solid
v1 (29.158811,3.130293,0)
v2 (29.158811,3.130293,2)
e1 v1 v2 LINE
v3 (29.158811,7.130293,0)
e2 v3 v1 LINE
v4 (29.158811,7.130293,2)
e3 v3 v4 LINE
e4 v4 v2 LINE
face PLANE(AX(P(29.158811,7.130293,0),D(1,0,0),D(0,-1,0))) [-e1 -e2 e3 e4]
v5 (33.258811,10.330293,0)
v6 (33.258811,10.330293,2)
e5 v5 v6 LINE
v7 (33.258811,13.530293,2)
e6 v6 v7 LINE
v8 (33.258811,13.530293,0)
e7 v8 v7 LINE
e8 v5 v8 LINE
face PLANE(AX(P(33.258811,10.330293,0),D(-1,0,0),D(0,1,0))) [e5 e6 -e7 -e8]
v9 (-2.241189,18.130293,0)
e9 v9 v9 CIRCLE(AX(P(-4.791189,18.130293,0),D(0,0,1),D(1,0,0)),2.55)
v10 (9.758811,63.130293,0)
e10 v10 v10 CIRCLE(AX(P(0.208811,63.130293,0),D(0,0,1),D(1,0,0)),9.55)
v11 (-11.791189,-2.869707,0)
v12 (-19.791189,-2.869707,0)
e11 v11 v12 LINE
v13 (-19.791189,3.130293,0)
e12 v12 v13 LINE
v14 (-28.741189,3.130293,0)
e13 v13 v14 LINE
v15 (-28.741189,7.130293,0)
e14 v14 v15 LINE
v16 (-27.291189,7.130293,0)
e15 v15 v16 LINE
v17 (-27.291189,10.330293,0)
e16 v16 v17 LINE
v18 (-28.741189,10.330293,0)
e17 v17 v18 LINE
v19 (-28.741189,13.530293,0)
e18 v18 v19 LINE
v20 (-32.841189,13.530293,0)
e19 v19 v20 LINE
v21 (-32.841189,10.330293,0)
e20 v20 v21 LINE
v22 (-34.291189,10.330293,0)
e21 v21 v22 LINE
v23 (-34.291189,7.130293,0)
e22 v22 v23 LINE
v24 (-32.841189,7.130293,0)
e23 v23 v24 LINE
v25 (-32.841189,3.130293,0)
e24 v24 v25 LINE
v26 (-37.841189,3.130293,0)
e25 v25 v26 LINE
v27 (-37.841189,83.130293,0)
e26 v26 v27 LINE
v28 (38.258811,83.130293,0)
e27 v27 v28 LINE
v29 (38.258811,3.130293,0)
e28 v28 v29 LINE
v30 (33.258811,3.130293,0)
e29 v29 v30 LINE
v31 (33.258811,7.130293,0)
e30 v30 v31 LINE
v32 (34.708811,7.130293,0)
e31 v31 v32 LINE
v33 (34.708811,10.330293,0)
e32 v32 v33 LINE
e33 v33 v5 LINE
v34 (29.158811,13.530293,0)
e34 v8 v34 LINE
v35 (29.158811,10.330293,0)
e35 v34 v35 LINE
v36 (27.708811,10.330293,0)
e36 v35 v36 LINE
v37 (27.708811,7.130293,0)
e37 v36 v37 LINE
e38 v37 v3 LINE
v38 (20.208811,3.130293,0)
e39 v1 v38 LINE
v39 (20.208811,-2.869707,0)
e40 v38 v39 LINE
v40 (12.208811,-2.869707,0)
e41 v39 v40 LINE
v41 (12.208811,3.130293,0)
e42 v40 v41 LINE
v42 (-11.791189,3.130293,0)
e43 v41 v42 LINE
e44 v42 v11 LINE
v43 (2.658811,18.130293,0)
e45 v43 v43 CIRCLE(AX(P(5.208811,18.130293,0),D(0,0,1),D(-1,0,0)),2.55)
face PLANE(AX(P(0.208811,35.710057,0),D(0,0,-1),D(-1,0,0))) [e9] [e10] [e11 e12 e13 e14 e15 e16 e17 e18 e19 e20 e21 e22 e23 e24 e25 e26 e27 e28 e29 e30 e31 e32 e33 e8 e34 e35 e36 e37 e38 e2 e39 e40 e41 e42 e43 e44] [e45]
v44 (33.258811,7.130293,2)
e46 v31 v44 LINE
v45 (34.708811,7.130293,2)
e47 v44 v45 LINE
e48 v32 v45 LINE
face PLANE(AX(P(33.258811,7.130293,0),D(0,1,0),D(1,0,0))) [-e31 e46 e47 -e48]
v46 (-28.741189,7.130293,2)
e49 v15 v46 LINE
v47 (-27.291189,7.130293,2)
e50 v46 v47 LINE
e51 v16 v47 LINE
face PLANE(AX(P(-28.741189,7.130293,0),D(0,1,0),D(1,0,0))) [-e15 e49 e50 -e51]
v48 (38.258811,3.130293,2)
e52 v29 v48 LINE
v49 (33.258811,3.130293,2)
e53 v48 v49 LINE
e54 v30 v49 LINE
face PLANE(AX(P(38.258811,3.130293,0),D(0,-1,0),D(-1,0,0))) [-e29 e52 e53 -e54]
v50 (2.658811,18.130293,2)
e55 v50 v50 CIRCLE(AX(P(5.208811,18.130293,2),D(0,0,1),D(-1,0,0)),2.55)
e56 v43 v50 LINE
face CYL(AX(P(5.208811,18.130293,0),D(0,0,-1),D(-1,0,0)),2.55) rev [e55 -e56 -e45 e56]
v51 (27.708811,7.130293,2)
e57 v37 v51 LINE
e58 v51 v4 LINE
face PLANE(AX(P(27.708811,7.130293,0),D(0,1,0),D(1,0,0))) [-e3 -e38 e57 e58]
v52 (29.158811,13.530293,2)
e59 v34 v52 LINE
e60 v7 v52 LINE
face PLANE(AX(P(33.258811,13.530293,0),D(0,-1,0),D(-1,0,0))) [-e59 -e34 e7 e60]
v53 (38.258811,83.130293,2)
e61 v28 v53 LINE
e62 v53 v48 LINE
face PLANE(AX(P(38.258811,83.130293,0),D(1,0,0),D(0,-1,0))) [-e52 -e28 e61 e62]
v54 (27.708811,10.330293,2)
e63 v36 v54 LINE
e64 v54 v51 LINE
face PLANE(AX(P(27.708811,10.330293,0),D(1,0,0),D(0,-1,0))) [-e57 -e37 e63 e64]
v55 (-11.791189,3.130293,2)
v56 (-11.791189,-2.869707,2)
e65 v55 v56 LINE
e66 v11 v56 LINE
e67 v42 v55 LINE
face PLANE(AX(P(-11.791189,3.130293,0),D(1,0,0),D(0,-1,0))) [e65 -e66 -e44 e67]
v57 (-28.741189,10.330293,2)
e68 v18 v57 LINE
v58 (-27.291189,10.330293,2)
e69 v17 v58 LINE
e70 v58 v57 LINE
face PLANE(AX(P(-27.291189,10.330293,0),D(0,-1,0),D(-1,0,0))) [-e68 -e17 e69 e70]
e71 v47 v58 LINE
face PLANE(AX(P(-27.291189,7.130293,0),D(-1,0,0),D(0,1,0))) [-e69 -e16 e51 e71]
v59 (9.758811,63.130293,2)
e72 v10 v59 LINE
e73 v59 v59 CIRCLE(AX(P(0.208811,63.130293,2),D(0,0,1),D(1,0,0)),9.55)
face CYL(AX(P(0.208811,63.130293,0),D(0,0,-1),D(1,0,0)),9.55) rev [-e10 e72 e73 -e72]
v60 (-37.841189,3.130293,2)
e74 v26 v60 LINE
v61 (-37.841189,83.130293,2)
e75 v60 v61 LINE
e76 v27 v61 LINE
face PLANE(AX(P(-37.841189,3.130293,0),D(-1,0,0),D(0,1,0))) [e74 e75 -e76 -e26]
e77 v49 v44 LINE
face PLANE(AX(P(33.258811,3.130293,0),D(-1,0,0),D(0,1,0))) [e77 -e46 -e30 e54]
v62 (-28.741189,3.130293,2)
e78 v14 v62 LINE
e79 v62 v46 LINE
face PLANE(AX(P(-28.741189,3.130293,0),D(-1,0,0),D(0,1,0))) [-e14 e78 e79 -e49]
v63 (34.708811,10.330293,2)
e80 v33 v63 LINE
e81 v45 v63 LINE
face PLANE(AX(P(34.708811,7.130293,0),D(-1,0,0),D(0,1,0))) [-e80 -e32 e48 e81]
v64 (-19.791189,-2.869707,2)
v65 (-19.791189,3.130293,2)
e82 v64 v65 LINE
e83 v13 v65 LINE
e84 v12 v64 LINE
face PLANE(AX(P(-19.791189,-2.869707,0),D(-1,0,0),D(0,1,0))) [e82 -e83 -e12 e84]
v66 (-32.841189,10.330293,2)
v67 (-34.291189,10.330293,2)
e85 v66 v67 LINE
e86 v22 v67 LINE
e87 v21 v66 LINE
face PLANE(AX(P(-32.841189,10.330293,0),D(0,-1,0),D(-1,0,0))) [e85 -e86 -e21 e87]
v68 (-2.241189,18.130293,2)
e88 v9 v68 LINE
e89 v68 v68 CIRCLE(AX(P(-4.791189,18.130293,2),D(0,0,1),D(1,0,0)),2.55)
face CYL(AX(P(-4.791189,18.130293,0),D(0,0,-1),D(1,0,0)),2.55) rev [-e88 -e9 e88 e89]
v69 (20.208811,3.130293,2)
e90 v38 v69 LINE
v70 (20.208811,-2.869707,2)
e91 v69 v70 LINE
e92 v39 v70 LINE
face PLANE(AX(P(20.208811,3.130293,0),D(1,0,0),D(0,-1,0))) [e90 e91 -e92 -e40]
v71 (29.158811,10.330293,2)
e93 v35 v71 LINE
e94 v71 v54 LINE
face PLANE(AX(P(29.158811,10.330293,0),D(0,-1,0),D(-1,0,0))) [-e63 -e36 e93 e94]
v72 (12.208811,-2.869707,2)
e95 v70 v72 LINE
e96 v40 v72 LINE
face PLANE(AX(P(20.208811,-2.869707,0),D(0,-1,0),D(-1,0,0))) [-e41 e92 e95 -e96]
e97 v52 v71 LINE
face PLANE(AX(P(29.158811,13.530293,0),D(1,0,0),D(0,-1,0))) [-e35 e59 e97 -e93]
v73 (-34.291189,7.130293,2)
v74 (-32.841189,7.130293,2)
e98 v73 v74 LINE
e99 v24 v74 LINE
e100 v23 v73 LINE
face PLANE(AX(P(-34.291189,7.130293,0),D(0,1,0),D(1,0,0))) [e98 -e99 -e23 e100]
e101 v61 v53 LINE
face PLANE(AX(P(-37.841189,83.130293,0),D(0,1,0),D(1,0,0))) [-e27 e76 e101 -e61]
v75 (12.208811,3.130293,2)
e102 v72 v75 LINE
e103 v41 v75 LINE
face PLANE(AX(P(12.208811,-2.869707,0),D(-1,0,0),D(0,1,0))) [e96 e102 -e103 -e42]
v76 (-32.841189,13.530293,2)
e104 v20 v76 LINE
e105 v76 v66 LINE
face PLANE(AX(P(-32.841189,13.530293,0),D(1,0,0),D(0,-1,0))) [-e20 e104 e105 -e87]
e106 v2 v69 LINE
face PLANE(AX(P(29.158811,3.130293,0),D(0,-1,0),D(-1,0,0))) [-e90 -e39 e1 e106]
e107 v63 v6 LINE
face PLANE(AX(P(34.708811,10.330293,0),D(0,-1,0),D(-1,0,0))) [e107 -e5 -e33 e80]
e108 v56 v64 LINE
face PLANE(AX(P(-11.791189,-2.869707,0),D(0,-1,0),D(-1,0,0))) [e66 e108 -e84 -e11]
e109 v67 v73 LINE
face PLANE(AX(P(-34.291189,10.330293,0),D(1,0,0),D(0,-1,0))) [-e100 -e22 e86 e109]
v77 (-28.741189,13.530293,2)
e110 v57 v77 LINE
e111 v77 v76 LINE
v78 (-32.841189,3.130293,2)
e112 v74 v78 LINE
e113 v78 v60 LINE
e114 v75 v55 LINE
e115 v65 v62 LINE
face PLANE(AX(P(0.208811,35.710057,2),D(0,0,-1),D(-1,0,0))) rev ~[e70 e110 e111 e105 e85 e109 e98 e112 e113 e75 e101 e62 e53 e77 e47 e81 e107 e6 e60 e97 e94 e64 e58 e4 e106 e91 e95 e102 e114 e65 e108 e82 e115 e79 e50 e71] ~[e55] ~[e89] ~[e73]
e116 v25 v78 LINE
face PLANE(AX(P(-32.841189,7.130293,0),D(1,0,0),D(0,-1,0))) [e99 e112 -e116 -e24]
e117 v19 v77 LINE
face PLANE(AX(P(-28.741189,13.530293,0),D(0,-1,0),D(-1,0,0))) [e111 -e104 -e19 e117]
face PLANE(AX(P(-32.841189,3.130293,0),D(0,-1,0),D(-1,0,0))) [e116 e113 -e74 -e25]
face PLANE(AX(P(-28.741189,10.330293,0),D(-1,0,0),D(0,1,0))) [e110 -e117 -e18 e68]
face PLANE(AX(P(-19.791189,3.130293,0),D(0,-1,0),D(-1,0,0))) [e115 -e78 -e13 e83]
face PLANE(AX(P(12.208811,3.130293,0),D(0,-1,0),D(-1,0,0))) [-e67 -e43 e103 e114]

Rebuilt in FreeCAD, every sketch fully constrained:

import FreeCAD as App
import Part
import Sketcher
from FreeCAD import Vector

doc = App.newDocument("Part")
params = doc.addObject("Spreadsheet::Sheet", "Params")
for row, (alias, value) in enumerate([
    ("sketch1_diameter", "5.1 mm"),
    ("sketch1_diameter2", "19.1 mm"),
    ("sketch1_width", "8 mm"),
    ("sketch1_width2", "24 mm"),
    ("sketch1_width3", "5 mm"),
    ("pad1_length", "2 mm"),
], start=1):
    params.set(f"A{row}", alias)
    params.set(f"B{row}", "=" + value)
    params.setAlias(f"B{row}", alias)

body = doc.addObject("PartDesign::Body", "Body")

# Sketch on XY plane
sketch1 = body.newObject("Sketcher::SketchObject", "Sketch")
sketch1.AttachmentSupport = (doc.getObject("XY_Plane"), [""])
sketch1.MapMode = "FlatFace"
sketch1.addGeometry([
    Part.LineSegment(Vector(-28.741189, 7.130293, 0), Vector(-28.741189, 3.130293, 0)),  # 0
    Part.LineSegment(Vector(-28.741189, 3.130293, 0), Vector(-19.791189, 3.130293, 0)),  # 1
    Part.LineSegment(Vector(-19.791189, 3.130293, 0), Vector(-19.791189, -2.869707, 0)),  # 2
    Part.LineSegment(Vector(-19.791189, -2.869707, 0), Vector(-11.791189, -2.869707, 0)),  # 3
    Part.LineSegment(Vector(-11.791189, -2.869707, 0), Vector(-11.791189, 3.130293, 0)),  # 4
    Part.LineSegment(Vector(-11.791189, 3.130293, 0), Vector(12.208811, 3.130293, 0)),  # 5
    Part.LineSegment(Vector(12.208811, 3.130293, 0), Vector(12.208811, -2.869707, 0)),  # 6
    Part.LineSegment(Vector(12.208811, -2.869707, 0), Vector(20.208811, -2.869707, 0)),  # 7
    Part.LineSegment(Vector(20.208811, -2.869707, 0), Vector(20.208811, 3.130293, 0)),  # 8
    Part.LineSegment(Vector(20.208811, 3.130293, 0), Vector(29.158811, 3.130293, 0)),  # 9
    Part.LineSegment(Vector(29.158811, 3.130293, 0), Vector(29.158811, 7.130293, 0)),  # 10
    Part.LineSegment(Vector(29.158811, 7.130293, 0), Vector(27.708811, 7.130293, 0)),  # 11
    Part.LineSegment(Vector(27.708811, 7.130293, 0), Vector(27.708811, 10.330293, 0)),  # 12
    Part.LineSegment(Vector(27.708811, 10.330293, 0), Vector(29.158811, 10.330293, 0)),  # 13
    Part.LineSegment(Vector(29.158811, 10.330293, 0), Vector(29.158811, 13.530293, 0)),  # 14
    Part.LineSegment(Vector(29.158811, 13.530293, 0), Vector(33.258811, 13.530293, 0)),  # 15
    Part.LineSegment(Vector(33.258811, 13.530293, 0), Vector(33.258811, 10.330293, 0)),  # 16
    Part.LineSegment(Vector(33.258811, 10.330293, 0), Vector(34.708811, 10.330293, 0)),  # 17
    Part.LineSegment(Vector(34.708811, 10.330293, 0), Vector(34.708811, 7.130293, 0)),  # 18
    Part.LineSegment(Vector(34.708811, 7.130293, 0), Vector(33.258811, 7.130293, 0)),  # 19
    Part.LineSegment(Vector(33.258811, 7.130293, 0), Vector(33.258811, 3.130293, 0)),  # 20
    Part.LineSegment(Vector(33.258811, 3.130293, 0), Vector(38.258811, 3.130293, 0)),  # 21
    Part.LineSegment(Vector(38.258811, 3.130293, 0), Vector(38.258811, 83.130293, 0)),  # 22
    Part.LineSegment(Vector(38.258811, 83.130293, 0), Vector(-37.841189, 83.130293, 0)),  # 23
    Part.LineSegment(Vector(-37.841189, 83.130293, 0), Vector(-37.841189, 3.130293, 0)),  # 24
    Part.LineSegment(Vector(-37.841189, 3.130293, 0), Vector(-32.841189, 3.130293, 0)),  # 25
    Part.LineSegment(Vector(-32.841189, 3.130293, 0), Vector(-32.841189, 7.130293, 0)),  # 26
    Part.LineSegment(Vector(-32.841189, 7.130293, 0), Vector(-34.291189, 7.130293, 0)),  # 27
    Part.LineSegment(Vector(-34.291189, 7.130293, 0), Vector(-34.291189, 10.330293, 0)),  # 28
    Part.LineSegment(Vector(-34.291189, 10.330293, 0), Vector(-32.841189, 10.330293, 0)),  # 29
    Part.LineSegment(Vector(-32.841189, 10.330293, 0), Vector(-32.841189, 13.530293, 0)),  # 30
    Part.LineSegment(Vector(-32.841189, 13.530293, 0), Vector(-28.741189, 13.530293, 0)),  # 31
    Part.LineSegment(Vector(-28.741189, 13.530293, 0), Vector(-28.741189, 10.330293, 0)),  # 32
    Part.LineSegment(Vector(-28.741189, 10.330293, 0), Vector(-27.291189, 10.330293, 0)),  # 33
    Part.LineSegment(Vector(-27.291189, 10.330293, 0), Vector(-27.291189, 7.130293, 0)),  # 34
    Part.LineSegment(Vector(-27.291189, 7.130293, 0), Vector(-28.741189, 7.130293, 0)),  # 35
    Part.Circle(Vector(5.208811, 18.130293, 0), Vector(0, 0, 1), 2.55),  # 36
    Part.Circle(Vector(-4.791189, 18.130293, 0), Vector(0, 0, 1), 2.55),  # 37
    Part.Circle(Vector(0.208811, 63.130293, 0), Vector(0, 0, 1), 9.55),  # 38
], False)
sketch1.addConstraint([
    Sketcher.Constraint("Coincident", 0, 2, 1, 1),
    Sketcher.Constraint("Coincident", 1, 2, 2, 1),
    Sketcher.Constraint("Coincident", 2, 2, 3, 1),
    Sketcher.Constraint("Coincident", 3, 2, 4, 1),
    Sketcher.Constraint("Coincident", 4, 2, 5, 1),
    Sketcher.Constraint("Coincident", 5, 2, 6, 1),
    Sketcher.Constraint("Coincident", 6, 2, 7, 1),
    Sketcher.Constraint("Coincident", 7, 2, 8, 1),
    Sketcher.Constraint("Coincident", 8, 2, 9, 1),
    Sketcher.Constraint("Coincident", 9, 2, 10, 1),
    Sketcher.Constraint("Coincident", 10, 2, 11, 1),
    Sketcher.Constraint("Coincident", 11, 2, 12, 1),
    Sketcher.Constraint("Coincident", 12, 2, 13, 1),
    Sketcher.Constraint("Coincident", 13, 2, 14, 1),
    Sketcher.Constraint("Coincident", 14, 2, 15, 1),
    Sketcher.Constraint("Coincident", 15, 2, 16, 1),
    Sketcher.Constraint("Coincident", 16, 2, 17, 1),
    Sketcher.Constraint("Coincident", 17, 2, 18, 1),
    Sketcher.Constraint("Coincident", 18, 2, 19, 1),
    Sketcher.Constraint("Coincident", 19, 2, 20, 1),
    Sketcher.Constraint("Coincident", 20, 2, 21, 1),
    Sketcher.Constraint("Coincident", 21, 2, 22, 1),
    Sketcher.Constraint("Coincident", 22, 2, 23, 1),
    Sketcher.Constraint("Coincident", 23, 2, 24, 1),
    Sketcher.Constraint("Coincident", 24, 2, 25, 1),
    Sketcher.Constraint("Coincident", 25, 2, 26, 1),
    Sketcher.Constraint("Coincident", 26, 2, 27, 1),
    Sketcher.Constraint("Coincident", 27, 2, 28, 1),
    Sketcher.Constraint("Coincident", 28, 2, 29, 1),
    Sketcher.Constraint("Coincident", 29, 2, 30, 1),
    Sketcher.Constraint("Coincident", 30, 2, 31, 1),
    Sketcher.Constraint("Coincident", 31, 2, 32, 1),
    Sketcher.Constraint("Coincident", 32, 2, 33, 1),
    Sketcher.Constraint("Coincident", 33, 2, 34, 1),
    Sketcher.Constraint("Coincident", 34, 2, 35, 1),
    Sketcher.Constraint("Coincident", 35, 2, 0, 1),
    Sketcher.Constraint("Vertical", 0),
    Sketcher.Constraint("Horizontal", 1),
    Sketcher.Constraint("Vertical", 2),
    Sketcher.Constraint("Horizontal", 3),
    Sketcher.Constraint("Vertical", 4),
    Sketcher.Constraint("Horizontal", 5),
    Sketcher.Constraint("Vertical", 6),
    Sketcher.Constraint("Horizontal", 7),
    Sketcher.Constraint("Vertical", 8),
    Sketcher.Constraint("Horizontal", 9),
    Sketcher.Constraint("Vertical", 10),
    Sketcher.Constraint("Horizontal", 11),
    Sketcher.Constraint("Vertical", 12),
    Sketcher.Constraint("Horizontal", 13),
    Sketcher.Constraint("Vertical", 14),
    Sketcher.Constraint("Horizontal", 15),
    Sketcher.Constraint("Vertical", 16),
    Sketcher.Constraint("Horizontal", 17),
    Sketcher.Constraint("Vertical", 18),
    Sketcher.Constraint("Horizontal", 19),
    Sketcher.Constraint("Vertical", 20),
    Sketcher.Constraint("Horizontal", 21),
    Sketcher.Constraint("Vertical", 22),
    Sketcher.Constraint("Horizontal", 23),
    Sketcher.Constraint("Vertical", 24),
    Sketcher.Constraint("Horizontal", 25),
    Sketcher.Constraint("Vertical", 26),
    Sketcher.Constraint("Horizontal", 27),
    Sketcher.Constraint("Vertical", 28),
    Sketcher.Constraint("Horizontal", 29),
    Sketcher.Constraint("Vertical", 30),
    Sketcher.Constraint("Horizontal", 31),
    Sketcher.Constraint("Vertical", 32),
    Sketcher.Constraint("Horizontal", 33),
    Sketcher.Constraint("Vertical", 34),
    Sketcher.Constraint("Horizontal", 35),
    Sketcher.Constraint("Equal", 36, 37),
    Sketcher.Constraint("Horizontal", 36, 3, 37, 3),
    Sketcher.Constraint("Horizontal", 1, 2, 4, 2),
    Sketcher.Constraint("Horizontal", 3, 2, 6, 2),
    Sketcher.Constraint("Horizontal", 5, 2, 8, 2),
    Sketcher.Constraint("Horizontal", 13, 2, 16, 2),
    Sketcher.Constraint("Horizontal", 11, 2, 18, 2),
    Sketcher.Constraint("Horizontal", 9, 2, 20, 2),
    Sketcher.Constraint("Horizontal", 21, 2, 24, 2),
    Sketcher.Constraint("Horizontal", 19, 2, 26, 2),
    Sketcher.Constraint("Horizontal", 17, 2, 28, 2),
    Sketcher.Constraint("Horizontal", 15, 2, 30, 2),
    Sketcher.Constraint("Horizontal", 29, 2, 32, 2),
    Sketcher.Constraint("Horizontal", 27, 2, 34, 2),
    Sketcher.Constraint("Vertical", 10, 2, 13, 2),
    Sketcher.Constraint("Vertical", 16, 2, 19, 2),
    Sketcher.Constraint("Vertical", 26, 2, 29, 2),
    Sketcher.Constraint("Vertical", 0, 2, 31, 2),
    Sketcher.Constraint("Equal", 3, 7),
    Sketcher.Constraint("Equal", 1, 9),
    Sketcher.Constraint("Equal", 13, 17),
    Sketcher.Constraint("Equal", 21, 25),
    Sketcher.Constraint("Equal", 19, 27),
    Sketcher.Constraint("Equal", 15, 31),
    Sketcher.Constraint("Equal", 29, 33),
    Sketcher.Constraint("Equal", 12, 14),
    Sketcher.Constraint("Diameter", 36, 5.1),
    Sketcher.Constraint("Diameter", 38, 19.1),
    Sketcher.Constraint("DistanceX", 3, 1, 3, 2, 8.0),
    Sketcher.Constraint("DistanceX", 5, 1, 5, 2, 24.0),
    Sketcher.Constraint("DistanceX", 21, 1, 21, 2, 5.0),
    Sketcher.Constraint("DistanceY", 0, 2, 0, 1, 4.0),
    Sketcher.Constraint("DistanceY", 2, 2, 2, 1, 6.0),
    Sketcher.Constraint("DistanceY", 22, 1, 22, 2, 80.0),
    Sketcher.Constraint("DistanceX", 15, 1, 15, 2, 4.1),
    Sketcher.Constraint("DistanceX", 23, 2, 23, 1, 76.1),
    Sketcher.Constraint("DistanceY", 12, 1, 12, 2, 3.2),
    Sketcher.Constraint("DistanceX", 37, 3, 36, 3, 10.0),
    Sketcher.Constraint("DistanceX", 38, 3, 36, 3, 5.0),
    Sketcher.Constraint("DistanceY", 36, 3, 38, 3, 45.0),
    Sketcher.Constraint("DistanceY", 0, 2, 37, 3, 15.0),
    Sketcher.Constraint("DistanceX", 1, 2, 37, 3, 15.0),
    Sketcher.Constraint("DistanceX", 11, 2, 11, 1, 1.45),
    Sketcher.Constraint("DistanceX", -1, 1, 36, 3, 5.208811),
    Sketcher.Constraint("DistanceY", -1, 1, 36, 3, 18.130293),
])
sketch1.setExpression("Constraints[98]", "Params.sketch1_diameter")
sketch1.setExpression("Constraints[99]", "Params.sketch1_diameter2")
sketch1.setExpression("Constraints[100]", "Params.sketch1_width")
sketch1.setExpression("Constraints[101]", "Params.sketch1_width2")
sketch1.setExpression("Constraints[102]", "Params.sketch1_width3")
pad1 = body.newObject("PartDesign::Pad", "Pad")
pad1.Profile = sketch1
pad1.setExpression("Length", "Params.pad1_length")

doc.recompute()
